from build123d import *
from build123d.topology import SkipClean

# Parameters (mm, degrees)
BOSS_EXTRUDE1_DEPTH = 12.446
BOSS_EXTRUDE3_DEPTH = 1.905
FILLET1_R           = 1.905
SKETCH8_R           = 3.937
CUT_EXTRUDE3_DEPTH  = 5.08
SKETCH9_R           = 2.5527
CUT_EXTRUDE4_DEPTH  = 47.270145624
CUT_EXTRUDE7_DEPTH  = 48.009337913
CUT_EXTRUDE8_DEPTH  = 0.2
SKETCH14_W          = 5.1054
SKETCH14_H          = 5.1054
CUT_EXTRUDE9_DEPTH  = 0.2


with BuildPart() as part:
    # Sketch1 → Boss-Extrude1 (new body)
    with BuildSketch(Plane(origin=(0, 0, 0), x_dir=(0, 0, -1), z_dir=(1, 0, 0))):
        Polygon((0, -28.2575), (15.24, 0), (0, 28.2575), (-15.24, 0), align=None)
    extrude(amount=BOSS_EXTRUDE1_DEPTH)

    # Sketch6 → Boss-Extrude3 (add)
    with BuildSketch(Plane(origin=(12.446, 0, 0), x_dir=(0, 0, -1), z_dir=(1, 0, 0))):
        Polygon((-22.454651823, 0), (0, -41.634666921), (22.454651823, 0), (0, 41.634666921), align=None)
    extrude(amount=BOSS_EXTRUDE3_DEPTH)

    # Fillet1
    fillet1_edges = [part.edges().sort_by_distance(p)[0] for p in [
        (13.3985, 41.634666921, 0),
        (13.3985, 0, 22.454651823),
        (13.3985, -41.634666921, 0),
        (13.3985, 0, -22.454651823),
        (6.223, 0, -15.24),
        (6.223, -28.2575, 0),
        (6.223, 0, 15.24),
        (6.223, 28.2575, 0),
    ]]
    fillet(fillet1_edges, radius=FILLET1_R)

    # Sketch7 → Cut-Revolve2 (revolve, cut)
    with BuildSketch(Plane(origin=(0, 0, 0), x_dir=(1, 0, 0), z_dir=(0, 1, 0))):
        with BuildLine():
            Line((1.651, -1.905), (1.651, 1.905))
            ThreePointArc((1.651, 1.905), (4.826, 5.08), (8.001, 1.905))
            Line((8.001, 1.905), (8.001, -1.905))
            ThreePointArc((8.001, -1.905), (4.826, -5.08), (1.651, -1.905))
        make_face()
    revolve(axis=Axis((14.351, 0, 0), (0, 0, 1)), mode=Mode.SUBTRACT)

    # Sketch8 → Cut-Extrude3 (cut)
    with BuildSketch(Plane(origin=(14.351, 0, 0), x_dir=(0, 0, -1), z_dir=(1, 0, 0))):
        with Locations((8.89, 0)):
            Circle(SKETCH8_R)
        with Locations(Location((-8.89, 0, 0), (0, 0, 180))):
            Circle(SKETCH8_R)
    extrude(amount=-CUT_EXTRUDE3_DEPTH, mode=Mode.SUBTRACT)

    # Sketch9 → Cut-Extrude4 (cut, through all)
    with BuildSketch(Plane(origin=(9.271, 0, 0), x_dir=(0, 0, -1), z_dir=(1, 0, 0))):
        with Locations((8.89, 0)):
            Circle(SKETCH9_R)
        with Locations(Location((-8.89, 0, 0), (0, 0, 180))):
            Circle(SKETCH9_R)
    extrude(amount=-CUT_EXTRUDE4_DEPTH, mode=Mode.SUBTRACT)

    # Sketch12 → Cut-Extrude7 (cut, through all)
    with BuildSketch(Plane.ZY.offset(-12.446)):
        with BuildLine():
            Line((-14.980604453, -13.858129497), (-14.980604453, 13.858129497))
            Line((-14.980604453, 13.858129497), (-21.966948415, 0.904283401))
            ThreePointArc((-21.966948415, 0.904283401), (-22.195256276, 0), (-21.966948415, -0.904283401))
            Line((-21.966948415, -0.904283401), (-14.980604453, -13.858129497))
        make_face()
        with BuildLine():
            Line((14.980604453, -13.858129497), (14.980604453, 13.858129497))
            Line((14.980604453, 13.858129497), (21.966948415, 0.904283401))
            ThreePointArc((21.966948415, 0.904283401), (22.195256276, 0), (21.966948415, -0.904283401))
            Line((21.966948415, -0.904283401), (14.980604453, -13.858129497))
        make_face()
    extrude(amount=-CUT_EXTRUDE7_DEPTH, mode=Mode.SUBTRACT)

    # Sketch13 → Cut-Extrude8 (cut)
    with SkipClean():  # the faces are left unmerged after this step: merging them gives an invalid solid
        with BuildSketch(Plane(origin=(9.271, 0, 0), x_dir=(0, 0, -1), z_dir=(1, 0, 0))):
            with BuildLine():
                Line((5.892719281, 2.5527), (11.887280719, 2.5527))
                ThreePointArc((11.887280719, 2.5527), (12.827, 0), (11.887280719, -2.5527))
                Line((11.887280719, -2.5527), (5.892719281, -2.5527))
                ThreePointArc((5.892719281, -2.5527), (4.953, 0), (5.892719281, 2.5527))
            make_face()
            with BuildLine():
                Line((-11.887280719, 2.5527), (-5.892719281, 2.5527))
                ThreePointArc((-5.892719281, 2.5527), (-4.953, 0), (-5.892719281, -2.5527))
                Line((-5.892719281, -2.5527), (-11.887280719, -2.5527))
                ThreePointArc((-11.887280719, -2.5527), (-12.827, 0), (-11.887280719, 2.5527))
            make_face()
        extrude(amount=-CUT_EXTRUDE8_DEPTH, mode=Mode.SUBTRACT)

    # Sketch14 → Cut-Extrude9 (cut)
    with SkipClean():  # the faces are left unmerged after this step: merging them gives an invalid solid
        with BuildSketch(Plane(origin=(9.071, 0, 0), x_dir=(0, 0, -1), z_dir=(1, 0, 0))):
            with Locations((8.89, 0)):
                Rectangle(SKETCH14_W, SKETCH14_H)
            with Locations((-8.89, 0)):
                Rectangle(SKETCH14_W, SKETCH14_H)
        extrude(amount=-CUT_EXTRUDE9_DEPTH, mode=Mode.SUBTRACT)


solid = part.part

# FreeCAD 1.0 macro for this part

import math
import FreeCAD as App
import Part
import Sketcher
Q = App.Units.Quantity


def edges_at(feature, points):
    """Names of the edges that pass closest to the given points."""
    edges = feature.Shape.Edges
    near = lambda p: min(range(len(edges)), key=lambda i: edges[i].distToShape(Part.Vertex(*p))[0])
    return sorted({f"Edge{near(p) + 1}" for p in points})


def add_polygon(sketch, points):
    """Adds a closed chain of lines whose ends are joined by coincident constraints."""
    first, n = sketch.GeometryCount, len(points)
    for a, b in zip(points, points[1:] + points[:1]):
        sketch.addGeometry(Part.LineSegment(App.Vector(*a, 0), App.Vector(*b, 0)), False)
    for i in range(n):
        sketch.addConstraint(Sketcher.Constraint("Coincident", first + i, 2, first + (i + 1) % n, 1))

doc = App.newDocument("Part")
body = doc.addObject("PartDesign::Body", "Body")

# Sketch on YZ plane
sketch1 = body.newObject("Sketcher::SketchObject", "Sketch")
sketch1.AttachmentSupport = (doc.getObject("YZ_Plane"), [""])
sketch1.MapMode = "FlatFace"
add_polygon(sketch1, [(-28, 0), (0, -15), (28, 0), (0, 15)])  # lines 0-3
sketch1.addConstraint(Sketcher.Constraint("Symmetric", 0, 2, 2, 2, -1, 1))
sketch1.addConstraint(Sketcher.Constraint("Symmetric", 1, 2, 3, 2, -1, 1))
sketch1.addConstraint(Sketcher.Constraint("PointOnObject", 0, 2, -2))
sketch1.addConstraint(Sketcher.Constraint("PointOnObject", 1, 2, -1))
sketch1.addConstraint(Sketcher.Constraint("DistanceY", 0, 2, -1, 1, Q("0.6 in")))
sketch1.addConstraint(Sketcher.Constraint("DistanceX", 3, 2, 1, 2, Q("2.225 in")))
pad1 = body.newObject("PartDesign::Pad", "Pad")
pad1.Profile = sketch1
pad1.Length = Q("0.49 in")

# Sketch on YZ plane
sketch2 = body.newObject("Sketcher::SketchObject", "Sketch001")
sketch2.AttachmentSupport = (doc.getObject("YZ_Plane"), [""])
sketch2.MapMode = "FlatFace"
sketch2.AttachmentOffset = App.Placement(App.Vector(0, 0, 0.49 * 25.4), App.Rotation())
add_polygon(sketch2, [(0, 22), (-42, 0), (0, -22), (42, 0)])  # lines 0-3
sketch2.addConstraint(Sketcher.Constraint("Symmetric", 0, 2, 2, 2, -1, 1))
sketch2.addConstraint(Sketcher.Constraint("Symmetric", 1, 2, 3, 2, -1, 1))
sketch2.addConstraint(Sketcher.Constraint("PointOnObject", 0, 2, -1))
sketch2.addConstraint(Sketcher.Constraint("PointOnObject", 1, 2, -2))
sketch2.addConstraint(Sketcher.Constraint("Distance", 0, 47.303878))
sketch2.addConstraint(Sketcher.Constraint("DistanceY", 1, 2, -1, 1, 22.454652))
pad2 = body.newObject("PartDesign::Pad", "Pad001")
pad2.Profile = sketch2
pad2.Length = Q("0.075 in")
doc.recompute()

fillet = body.newObject("PartDesign::Fillet", "Fillet")
fillet.Base = (pad2, edges_at(pad2, [
    (13.399, 41.635, 0),
    (13.399, 0, 22.455),
    (13.399, -41.635, 0),
    (13.399, 0, -22.455),
    (6.223, 0, -15.24),
    (6.223, -28.258, 0),
    (6.223, 0, 15.24),
    (6.223, 28.258, 0),
]))
fillet.Radius = Q("0.075 in")

# Sketch on XZ plane
sketch3 = body.newObject("Sketcher::SketchObject", "Sketch002")
sketch3.AttachmentSupport = (doc.getObject("XZ_Plane"), [""])
sketch3.MapMode = "FlatFace"
sketch3.addGeometry(Part.LineSegment(App.Vector(1.7, -1.9, 0), App.Vector(1.7, 1.9, 0)), False)
sketch3.addGeometry(Part.ArcOfCircle(Part.Circle(App.Vector(4.8, 1.9, 0), App.Vector(0, 0, 1), 3.2), math.radians(0), math.radians(180)), False)
sketch3.addGeometry(Part.LineSegment(App.Vector(8, 1.9, 0), App.Vector(8, -1.9, 0)), False)
sketch3.addGeometry(Part.ArcOfCircle(Part.Circle(App.Vector(4.8, -1.9, 0), App.Vector(0, 0, 1), 3.2), math.radians(180), math.radians(360)), False)
sketch3.addGeometry(Part.LineSegment(App.Vector(14.4, -1.9, 0), App.Vector(14.4, 1.9, 0)), True)  # axis
sketch3.addConstraint(Sketcher.Constraint("Tangent", 0, 2, 1, 2))
sketch3.addConstraint(Sketcher.Constraint("Tangent", 1, 1, 2, 1))
sketch3.addConstraint(Sketcher.Constraint("Tangent", 2, 2, 3, 2))
sketch3.addConstraint(Sketcher.Constraint("Tangent", 3, 1, 0, 1))
sketch3.addConstraint(Sketcher.Constraint("Vertical", 0))
sketch3.addConstraint(Sketcher.Constraint("Vertical", 2))
sketch3.addConstraint(Sketcher.Constraint("Vertical", 4))
sketch3.addConstraint(Sketcher.Constraint("Horizontal", 3, 1, 4, 1))
sketch3.addConstraint(Sketcher.Constraint("Horizontal", 1, 1, 4, 2))
sketch3.addConstraint(Sketcher.Constraint("Radius", 1, Q("0.125 in")))
sketch3.addConstraint(Sketcher.Constraint("DistanceY", 0, 1, 0, 2, Q("0.15 in")))
sketch3.addConstraint(Sketcher.Constraint("DistanceX", 3, 1, 4, 1, Q("0.5 in")))
sketch3.addConstraint(Sketcher.Constraint("DistanceX", -1, 1, 1, 3, Q("0.19 in")))
sketch3.addConstraint(Sketcher.Constraint("DistanceY", -1, 1, 1, 3, Q("0.075 in")))
groove = body.newObject("PartDesign::Groove", "Groove")
groove.Profile = sketch3
groove.ReferenceAxis = (sketch3, ["Axis0"])
groove.Angle = 360

# Sketch on YZ plane
sketch4 = body.newObject("Sketcher::SketchObject", "Sketch003")
sketch4.AttachmentSupport = (doc.getObject("YZ_Plane"), [""])
sketch4.MapMode = "FlatFace"
sketch4.AttachmentOffset = App.Placement(App.Vector(0, 0, 0.565 * 25.4), App.Rotation())
sketch4.addGeometry(Part.Circle(App.Vector(0, -8.9, 0), App.Vector(0, 0, 1), 3.9), False)
sketch4.addGeometry(Part.Circle(App.Vector(0, 8.9, 0), App.Vector(0, 0, 1), 3.9), False)
sketch4.addConstraint(Sketcher.Constraint("Equal", 0, 1))
sketch4.addConstraint(Sketcher.Constraint("Symmetric", 0, 3, 1, 3, -1, 1))
sketch4.addConstraint(Sketcher.Constraint("PointOnObject", 0, 3, -2))
sketch4.addConstraint(Sketcher.Constraint("Diameter", 0, Q("0.31 in")))
sketch4.addConstraint(Sketcher.Constraint("DistanceY", 0, 3, 1, 3, Q("0.7 in")))
pocket1 = body.newObject("PartDesign::Pocket", "Pocket")
pocket1.Profile = sketch4
pocket1.Length = Q("0.2 in")

# Sketch on YZ plane
sketch5 = body.newObject("Sketcher::SketchObject", "Sketch004")
sketch5.AttachmentSupport = (doc.getObject("YZ_Plane"), [""])
sketch5.MapMode = "FlatFace"
sketch5.AttachmentOffset = App.Placement(App.Vector(0, 0, 0.365 * 25.4), App.Rotation())
sketch5.addGeometry(Part.Circle(App.Vector(0, -8.9, 0), App.Vector(0, 0, 1), 2.6), False)
sketch5.addGeometry(Part.Circle(App.Vector(0, 8.9, 0), App.Vector(0, 0, 1), 2.6), False)
sketch5.addConstraint(Sketcher.Constraint("Equal", 0, 1))
sketch5.addConstraint(Sketcher.Constraint("Symmetric", 0, 3, 1, 3, -1, 1))
sketch5.addConstraint(Sketcher.Constraint("PointOnObject", 0, 3, -2))
sketch5.addConstraint(Sketcher.Constraint("Diameter", 0, Q("0.201 in")))
sketch5.addConstraint(Sketcher.Constraint("DistanceY", 0, 3, 1, 3, Q("0.7 in")))
pocket2 = body.newObject("PartDesign::Pocket", "Pocket001")
pocket2.Profile = sketch5
pocket2.Type = "ThroughAll"

# Sketch on YZ plane
sketch6 = body.newObject("Sketcher::SketchObject", "Sketch005")
sketch6.AttachmentSupport = (doc.getObject("YZ_Plane"), [""])
sketch6.MapMode = "FlatFace"
sketch6.AttachmentOffset = App.Placement(App.Vector(0, 0, 0.49 * 25.4), App.Rotation())
sketch6.addGeometry(Part.LineSegment(App.Vector(-13.9, -15, 0), App.Vector(13.9, -15, 0)), False)
sketch6.addGeometry(Part.LineSegment(App.Vector(13.9, -15, 0), App.Vector(0.9, -22, 0)), False)
sketch6.addGeometry(Part.ArcOfCircle(Part.Circle(App.Vector(0, -20.3, 0), App.Vector(0, 0, 1), 1.9), math.radians(-118), math.radians(-62)), False)
sketch6.addGeometry(Part.LineSegment(App.Vector(-0.9, -22, 0), App.Vector(-13.9, -15, 0)), False)
sketch6.addGeometry(Part.LineSegment(App.Vector(13.9, 15, 0), App.Vector(-13.9, 15, 0)), False)
sketch6.addGeometry(Part.LineSegment(App.Vector(-13.9, 15, 0), App.Vector(-0.9, 22, 0)), False)
sketch6.addGeometry(Part.ArcOfCircle(Part.Circle(App.Vector(0, 20.3, 0), App.Vector(0, 0, 1), 1.9), math.radians(62), math.radians(118)), False)
sketch6.addGeometry(Part.LineSegment(App.Vector(0.9, 22, 0), App.Vector(13.9, 15, 0)), False)
sketch6.addConstraint(Sketcher.Constraint("Coincident", 0, 2, 1, 1))
sketch6.addConstraint(Sketcher.Constraint("Tangent", 1, 2, 2, 2))
sketch6.addConstraint(Sketcher.Constraint("Tangent", 2, 1, 3, 1))
sketch6.addConstraint(Sketcher.Constraint("Coincident", 3, 2, 0, 1))
sketch6.addConstraint(Sketcher.Constraint("Coincident", 4, 2, 5, 1))
sketch6.addConstraint(Sketcher.Constraint("Tangent", 5, 2, 6, 2))
sketch6.addConstraint(Sketcher.Constraint("Tangent", 6, 1, 7, 1))
sketch6.addConstraint(Sketcher.Constraint("Coincident", 7, 2, 4, 1))
sketch6.addConstraint(Sketcher.Constraint("Horizontal", 0))
sketch6.addConstraint(Sketcher.Constraint("Horizontal", 4))
sketch6.addConstraint(Sketcher.Constraint("Equal", 2, 6))
sketch6.addConstraint(Sketcher.Constraint("Symmetric", 2, 3, 6, 3, -1, 1))
sketch6.addConstraint(Sketcher.Constraint("Symmetric", 0, 2, 4, 2, -1, 1))
sketch6.addConstraint(Sketcher.Constraint("Symmetric", 1, 2, 2, 1, -2))
sketch6.addConstraint(Sketcher.Constraint("Parallel", 3, 7))
sketch6.addConstraint(Sketcher.Constraint("Radius", 2, Q("0.075 in")))
sketch6.addConstraint(Sketcher.Constraint("DistanceX", 0, 1, 0, 2, 27.716259))
sketch6.addConstraint(Sketcher.Constraint("DistanceY", 1, 2, -1, 1, 21.966948))
sketch6.addConstraint(Sketcher.Constraint("DistanceY", 2, 3, 0, 2, 5.309652))
pocket3 = body.newObject("PartDesign::Pocket", "Pocket002")
pocket3.Profile = sketch6
pocket3.Type = "ThroughAll"
pocket3.Reversed = True

# Sketch on YZ plane
sketch7 = body.newObject("Sketcher::SketchObject", "Sketch006")
sketch7.AttachmentSupport = (doc.getObject("YZ_Plane"), [""])
sketch7.MapMode = "FlatFace"
sketch7.AttachmentOffset = App.Placement(App.Vector(0, 0, 0.365 * 25.4), App.Rotation())
sketch7.addGeometry(Part.LineSegment(App.Vector(2.6, -11.9, 0), App.Vector(2.6, -5.9, 0)), False)
sketch7.addGeometry(Part.ArcOfCircle(Part.Circle(App.Vector(0, -8.9, 0), App.Vector(0, 0, 1), 3.9), math.radians(50), math.radians(130)), False)
sketch7.addGeometry(Part.LineSegment(App.Vector(-2.6, -5.9, 0), App.Vector(-2.6, -11.9, 0)), False)
sketch7.addGeometry(Part.ArcOfCircle(Part.Circle(App.Vector(0, -8.9, 0), App.Vector(0, 0, 1), 3.9), math.radians(-130), math.radians(-50)), False)
sketch7.addGeometry(Part.LineSegment(App.Vector(2.6, 5.9, 0), App.Vector(2.6, 11.9, 0)), False)
sketch7.addGeometry(Part.ArcOfCircle(Part.Circle(App.Vector(0, 8.9, 0), App.Vector(0, 0, 1), 3.9), math.radians(50), math.radians(130)), False)
sketch7.addGeometry(Part.LineSegment(App.Vector(-2.6, 11.9, 0), App.Vector(-2.6, 5.9, 0)), False)
sketch7.addGeometry(Part.ArcOfCircle(Part.Circle(App.Vector(0, 8.9, 0), App.Vector(0, 0, 1), 3.9), math.radians(-130), math.radians(-50)), False)
sketch7.addConstraint(Sketcher.Constraint("Coincident", 0, 2, 1, 1))
sketch7.addConstraint(Sketcher.Constraint("Coincident", 1, 2, 2, 1))
sketch7.addConstraint(Sketcher.Constraint("Coincident", 2, 2, 3, 1))
sketch7.addConstraint(Sketcher.Constraint("Coincident", 3, 2, 0, 1))
sketch7.addConstraint(Sketcher.Constraint("Coincident", 4, 2, 5, 1))
sketch7.addConstraint(Sketcher.Constraint("Coincident", 5, 2, 6, 1))
sketch7.addConstraint(Sketcher.Constraint("Coincident", 6, 2, 7, 1))
sketch7.addConstraint(Sketcher.Constraint("Coincident", 7, 2, 4, 1))
sketch7.addConstraint(Sketcher.Constraint("Vertical", 0))
sketch7.addConstraint(Sketcher.Constraint("Vertical", 2))
sketch7.addConstraint(Sketcher.Constraint("Vertical", 4))
sketch7.addConstraint(Sketcher.Constraint("Vertical", 6))
sketch7.addConstraint(Sketcher.Constraint("Coincident", 3, 3, 1, 3))
sketch7.addConstraint(Sketcher.Constraint("Coincident", 7, 3, 5, 3))
sketch7.addConstraint(Sketcher.Constraint("Equal", 1, 3))
sketch7.addConstraint(Sketcher.Constraint("Equal", 3, 5))
sketch7.addConstraint(Sketcher.Constraint("Equal", 5, 7))
sketch7.addConstraint(Sketcher.Constraint("Symmetric", 1, 3, 5, 3, -1, 1))
sketch7.addConstraint(Sketcher.Constraint("Symmetric", 0, 2, 1, 2, -2))
sketch7.addConstraint(Sketcher.Constraint("Horizontal", 4, 2, 5, 2))
sketch7.addConstraint(Sketcher.Constraint("Vertical", 3, 2, 4, 2))
sketch7.addConstraint(Sketcher.Constraint("Radius", 1, Q("0.155 in")))
sketch7.addConstraint(Sketcher.Constraint("DistanceY", 1, 3, 5, 3, Q("0.7 in")))
sketch7.addConstraint(Sketcher.Constraint("DistanceX", 1, 2, 0, 2, Q("0.201 in")))
pocket4 = body.newObject("PartDesign::Pocket", "Pocket003")
pocket4.Profile = sketch7
pocket4.Length = 0.2

# Sketch on YZ plane
sketch8 = body.newObject("Sketcher::SketchObject", "Sketch007")
sketch8.AttachmentSupport = (doc.getObject("YZ_Plane"), [""])
sketch8.MapMode = "FlatFace"
sketch8.AttachmentOffset = App.Placement(App.Vector(0, 0, 9.071), App.Rotation())
add_polygon(sketch8, [(3, -6), (-3, -6), (-3, -11), (3, -11)])  # lines 0-3
add_polygon(sketch8, [(3, 11), (-3, 11), (-3, 6), (3, 6)])  # lines 4-7
sketch8.addConstraint(Sketcher.Constraint("Horizontal", 0))
sketch8.addConstraint(Sketcher.Constraint("Vertical", 1))
sketch8.addConstraint(Sketcher.Constraint("Horizontal", 2))
sketch8.addConstraint(Sketcher.Constraint("Vertical", 3))
sketch8.addConstraint(Sketcher.Constraint("Horizontal", 4))
sketch8.addConstraint(Sketcher.Constraint("Vertical", 5))
sketch8.addConstraint(Sketcher.Constraint("Horizontal", 6))
sketch8.addConstraint(Sketcher.Constraint("Vertical", 7))
sketch8.addConstraint(Sketcher.Constraint("Symmetric", 2, 2, 4, 2, -1, 1))
sketch8.addConstraint(Sketcher.Constraint("Symmetric", 0, 2, 6, 2, -1, 1))
sketch8.addConstraint(Sketcher.Constraint("Vertical", 1, 2, 4, 2))
sketch8.addConstraint(Sketcher.Constraint("Equal", 6, 1))
sketch8.addConstraint(Sketcher.Constraint("DistanceY", 0, 2, 4, 2, Q("0.7 in")))
sketch8.addConstraint(Sketcher.Constraint("DistanceX", 0, 2, 0, 1, Q("0.201 in")))
pocket5 = body.newObject("PartDesign::Pocket", "Pocket004")
pocket5.Profile = sketch8
pocket5.Length = 0.2

doc.recompute()
